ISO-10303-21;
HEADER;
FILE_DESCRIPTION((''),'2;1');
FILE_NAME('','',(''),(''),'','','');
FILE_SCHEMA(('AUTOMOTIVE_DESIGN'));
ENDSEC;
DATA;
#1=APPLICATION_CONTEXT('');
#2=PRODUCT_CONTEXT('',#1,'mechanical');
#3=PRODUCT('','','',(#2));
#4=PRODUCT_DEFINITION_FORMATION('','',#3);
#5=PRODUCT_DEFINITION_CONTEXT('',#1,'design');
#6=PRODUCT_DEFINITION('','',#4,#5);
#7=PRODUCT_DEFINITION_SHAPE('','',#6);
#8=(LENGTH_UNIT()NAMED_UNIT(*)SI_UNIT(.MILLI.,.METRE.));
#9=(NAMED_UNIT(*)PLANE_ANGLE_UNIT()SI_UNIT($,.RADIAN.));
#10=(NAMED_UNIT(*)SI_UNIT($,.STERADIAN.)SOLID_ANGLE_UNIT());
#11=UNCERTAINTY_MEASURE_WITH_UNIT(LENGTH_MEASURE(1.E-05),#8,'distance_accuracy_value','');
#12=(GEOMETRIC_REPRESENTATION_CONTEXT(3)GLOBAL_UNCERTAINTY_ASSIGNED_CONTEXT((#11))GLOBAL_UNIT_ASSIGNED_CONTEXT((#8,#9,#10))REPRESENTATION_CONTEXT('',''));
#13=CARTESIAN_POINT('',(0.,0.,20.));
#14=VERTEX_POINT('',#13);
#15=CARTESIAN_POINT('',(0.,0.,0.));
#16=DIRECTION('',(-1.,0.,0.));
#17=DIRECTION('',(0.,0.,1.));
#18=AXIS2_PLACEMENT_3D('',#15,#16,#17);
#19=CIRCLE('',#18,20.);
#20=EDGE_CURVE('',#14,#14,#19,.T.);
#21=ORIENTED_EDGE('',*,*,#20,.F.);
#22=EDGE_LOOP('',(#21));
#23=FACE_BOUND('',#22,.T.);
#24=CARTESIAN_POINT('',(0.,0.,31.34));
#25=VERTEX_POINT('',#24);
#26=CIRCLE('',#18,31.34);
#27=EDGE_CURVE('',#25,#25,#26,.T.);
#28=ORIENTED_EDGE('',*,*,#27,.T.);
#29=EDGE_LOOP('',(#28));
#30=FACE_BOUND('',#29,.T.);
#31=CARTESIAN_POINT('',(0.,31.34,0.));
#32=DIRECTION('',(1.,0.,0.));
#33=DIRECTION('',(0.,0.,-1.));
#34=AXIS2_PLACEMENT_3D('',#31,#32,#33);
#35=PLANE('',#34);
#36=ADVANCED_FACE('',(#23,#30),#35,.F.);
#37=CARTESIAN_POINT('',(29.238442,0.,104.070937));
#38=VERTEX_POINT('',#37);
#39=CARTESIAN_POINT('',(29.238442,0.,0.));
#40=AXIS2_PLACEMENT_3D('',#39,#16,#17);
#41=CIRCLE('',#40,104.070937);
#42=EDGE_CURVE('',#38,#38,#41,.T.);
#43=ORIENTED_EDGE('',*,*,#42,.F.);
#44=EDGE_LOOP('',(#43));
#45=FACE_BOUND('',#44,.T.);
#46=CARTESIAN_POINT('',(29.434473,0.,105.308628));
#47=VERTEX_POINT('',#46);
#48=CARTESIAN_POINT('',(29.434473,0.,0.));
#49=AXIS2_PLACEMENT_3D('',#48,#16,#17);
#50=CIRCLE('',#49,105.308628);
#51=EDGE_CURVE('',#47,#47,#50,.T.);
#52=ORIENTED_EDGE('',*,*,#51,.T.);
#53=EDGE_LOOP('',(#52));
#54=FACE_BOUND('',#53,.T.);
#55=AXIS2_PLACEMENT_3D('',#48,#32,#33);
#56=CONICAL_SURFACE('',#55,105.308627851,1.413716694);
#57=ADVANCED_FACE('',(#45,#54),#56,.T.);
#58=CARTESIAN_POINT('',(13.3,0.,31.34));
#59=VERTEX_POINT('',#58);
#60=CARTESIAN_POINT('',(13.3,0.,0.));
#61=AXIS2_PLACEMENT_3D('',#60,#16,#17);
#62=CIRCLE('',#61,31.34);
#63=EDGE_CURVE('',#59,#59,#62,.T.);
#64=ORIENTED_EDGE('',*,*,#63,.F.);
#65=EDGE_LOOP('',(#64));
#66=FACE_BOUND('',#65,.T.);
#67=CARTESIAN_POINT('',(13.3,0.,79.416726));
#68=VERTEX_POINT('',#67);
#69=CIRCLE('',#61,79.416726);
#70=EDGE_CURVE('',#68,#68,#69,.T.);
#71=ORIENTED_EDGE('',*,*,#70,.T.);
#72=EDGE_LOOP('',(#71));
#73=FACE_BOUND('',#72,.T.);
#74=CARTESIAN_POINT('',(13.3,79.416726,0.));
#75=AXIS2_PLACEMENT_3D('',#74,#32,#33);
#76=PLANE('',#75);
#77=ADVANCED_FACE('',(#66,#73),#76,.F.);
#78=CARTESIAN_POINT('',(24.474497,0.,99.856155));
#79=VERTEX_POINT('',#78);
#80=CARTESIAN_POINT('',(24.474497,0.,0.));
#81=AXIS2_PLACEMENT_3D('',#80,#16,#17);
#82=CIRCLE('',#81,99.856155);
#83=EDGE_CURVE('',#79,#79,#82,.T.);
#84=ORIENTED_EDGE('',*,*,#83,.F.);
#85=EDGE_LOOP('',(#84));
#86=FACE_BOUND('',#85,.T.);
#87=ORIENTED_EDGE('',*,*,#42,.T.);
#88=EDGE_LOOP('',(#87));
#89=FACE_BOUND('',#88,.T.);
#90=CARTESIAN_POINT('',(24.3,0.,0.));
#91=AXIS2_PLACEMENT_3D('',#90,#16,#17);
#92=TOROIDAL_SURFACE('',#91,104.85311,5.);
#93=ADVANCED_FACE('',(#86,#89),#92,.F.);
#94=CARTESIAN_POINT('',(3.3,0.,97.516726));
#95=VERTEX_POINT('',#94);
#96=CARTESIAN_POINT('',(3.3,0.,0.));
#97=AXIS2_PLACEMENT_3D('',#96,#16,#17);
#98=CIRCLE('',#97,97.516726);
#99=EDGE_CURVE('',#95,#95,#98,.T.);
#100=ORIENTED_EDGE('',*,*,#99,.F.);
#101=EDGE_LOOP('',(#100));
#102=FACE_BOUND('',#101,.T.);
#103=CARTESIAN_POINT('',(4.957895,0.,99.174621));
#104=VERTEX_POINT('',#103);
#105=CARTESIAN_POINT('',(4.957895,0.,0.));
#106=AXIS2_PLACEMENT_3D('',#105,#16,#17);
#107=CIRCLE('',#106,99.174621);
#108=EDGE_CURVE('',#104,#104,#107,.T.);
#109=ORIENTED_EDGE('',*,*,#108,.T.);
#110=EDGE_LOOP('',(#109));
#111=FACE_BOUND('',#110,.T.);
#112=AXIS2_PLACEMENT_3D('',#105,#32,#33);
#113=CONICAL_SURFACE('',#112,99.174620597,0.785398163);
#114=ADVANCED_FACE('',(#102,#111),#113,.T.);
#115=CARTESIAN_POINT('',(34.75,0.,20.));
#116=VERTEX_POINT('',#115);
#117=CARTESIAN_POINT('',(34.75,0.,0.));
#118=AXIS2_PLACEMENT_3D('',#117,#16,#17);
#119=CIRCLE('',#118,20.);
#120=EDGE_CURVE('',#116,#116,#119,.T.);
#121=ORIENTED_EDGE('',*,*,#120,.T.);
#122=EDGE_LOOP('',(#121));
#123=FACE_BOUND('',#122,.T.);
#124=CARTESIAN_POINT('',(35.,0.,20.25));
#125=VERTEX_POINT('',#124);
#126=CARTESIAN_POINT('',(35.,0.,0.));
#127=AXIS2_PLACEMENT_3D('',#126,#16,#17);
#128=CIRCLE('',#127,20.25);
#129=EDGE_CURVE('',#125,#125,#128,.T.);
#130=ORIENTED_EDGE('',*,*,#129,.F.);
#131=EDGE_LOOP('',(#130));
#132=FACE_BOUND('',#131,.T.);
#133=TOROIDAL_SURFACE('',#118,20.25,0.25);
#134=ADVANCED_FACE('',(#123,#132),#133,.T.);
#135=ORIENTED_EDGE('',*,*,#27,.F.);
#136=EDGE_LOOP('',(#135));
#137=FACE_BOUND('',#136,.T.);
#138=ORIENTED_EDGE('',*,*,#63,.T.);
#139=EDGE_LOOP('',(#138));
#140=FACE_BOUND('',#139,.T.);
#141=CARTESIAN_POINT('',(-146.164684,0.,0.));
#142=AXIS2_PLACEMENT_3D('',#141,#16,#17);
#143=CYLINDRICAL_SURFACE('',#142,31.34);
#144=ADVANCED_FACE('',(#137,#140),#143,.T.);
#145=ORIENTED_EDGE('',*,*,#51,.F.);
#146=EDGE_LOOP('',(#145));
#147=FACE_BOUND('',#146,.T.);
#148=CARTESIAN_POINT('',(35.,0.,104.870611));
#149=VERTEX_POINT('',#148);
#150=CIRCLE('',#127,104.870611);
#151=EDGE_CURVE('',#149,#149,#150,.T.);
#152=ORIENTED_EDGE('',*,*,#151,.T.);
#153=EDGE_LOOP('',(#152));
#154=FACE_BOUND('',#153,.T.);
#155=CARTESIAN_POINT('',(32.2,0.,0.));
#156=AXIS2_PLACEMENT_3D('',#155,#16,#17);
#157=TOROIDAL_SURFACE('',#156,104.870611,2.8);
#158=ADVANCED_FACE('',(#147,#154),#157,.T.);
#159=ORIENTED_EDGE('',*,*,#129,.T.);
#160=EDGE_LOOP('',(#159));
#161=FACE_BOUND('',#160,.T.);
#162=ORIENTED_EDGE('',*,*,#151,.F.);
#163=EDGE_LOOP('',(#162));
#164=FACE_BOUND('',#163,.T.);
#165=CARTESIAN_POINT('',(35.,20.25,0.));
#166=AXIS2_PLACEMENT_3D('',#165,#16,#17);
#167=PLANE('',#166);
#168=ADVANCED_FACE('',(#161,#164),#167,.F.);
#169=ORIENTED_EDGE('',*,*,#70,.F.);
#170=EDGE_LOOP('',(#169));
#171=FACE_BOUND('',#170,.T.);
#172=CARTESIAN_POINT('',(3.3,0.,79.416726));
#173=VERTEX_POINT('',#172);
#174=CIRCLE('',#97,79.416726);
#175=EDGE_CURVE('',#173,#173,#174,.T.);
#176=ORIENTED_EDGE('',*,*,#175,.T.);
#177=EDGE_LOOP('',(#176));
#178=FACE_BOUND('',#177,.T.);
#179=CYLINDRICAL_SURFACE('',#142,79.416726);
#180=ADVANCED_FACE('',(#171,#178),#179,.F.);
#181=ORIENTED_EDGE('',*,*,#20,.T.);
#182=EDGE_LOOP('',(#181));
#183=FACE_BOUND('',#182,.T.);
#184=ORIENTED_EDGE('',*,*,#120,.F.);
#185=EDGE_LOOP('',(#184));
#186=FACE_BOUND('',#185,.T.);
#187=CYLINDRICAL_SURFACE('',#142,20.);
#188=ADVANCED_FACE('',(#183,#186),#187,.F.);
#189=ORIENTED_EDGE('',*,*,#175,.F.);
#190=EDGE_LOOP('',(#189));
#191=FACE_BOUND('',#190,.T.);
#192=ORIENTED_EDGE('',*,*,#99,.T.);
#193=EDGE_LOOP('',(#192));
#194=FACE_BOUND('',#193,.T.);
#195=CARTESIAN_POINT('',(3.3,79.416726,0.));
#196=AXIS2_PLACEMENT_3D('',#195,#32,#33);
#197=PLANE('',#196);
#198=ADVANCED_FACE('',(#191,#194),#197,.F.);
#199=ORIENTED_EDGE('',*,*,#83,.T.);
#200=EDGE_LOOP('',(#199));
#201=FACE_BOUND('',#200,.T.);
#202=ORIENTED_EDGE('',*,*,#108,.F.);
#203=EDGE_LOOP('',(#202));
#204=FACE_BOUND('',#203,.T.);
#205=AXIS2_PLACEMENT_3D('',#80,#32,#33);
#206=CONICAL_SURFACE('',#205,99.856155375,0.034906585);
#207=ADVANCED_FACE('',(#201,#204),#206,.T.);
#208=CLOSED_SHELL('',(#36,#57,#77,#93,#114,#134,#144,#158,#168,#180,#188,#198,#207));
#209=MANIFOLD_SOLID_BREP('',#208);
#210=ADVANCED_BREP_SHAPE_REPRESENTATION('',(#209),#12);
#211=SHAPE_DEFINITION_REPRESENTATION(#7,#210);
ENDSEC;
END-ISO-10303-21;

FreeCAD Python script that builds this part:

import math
import FreeCAD as App
import Part
import Sketcher
from FreeCAD import Vector
Q = App.Units.Quantity

doc = App.newDocument("Part")
params = doc.addObject("Spreadsheet::Sheet", "Params")
for row, (alias, value) in enumerate([
    ("sketch1_radius", "5 mm"),
    ("sketch1_radius2", "2.8 mm"),
    ("sketch1_width", "10 mm"),
    ("sketch1_radius3", "0.25 mm"),
    ("sketch1_width2", "13.3 mm"),
    ("revolution_angle", "360 deg"),
], start=1):
    params.set(f"A{row}", alias)
    params.set(f"B{row}", "=" + value)
    params.setAlias(f"B{row}", alias)

body = doc.addObject("PartDesign::Body", "Body")

sketch1 = body.newObject("Sketcher::SketchObject", "Sketch")
sketch1.AttachmentSupport = (doc.getObject("XY_Plane"), [""])
sketch1.MapMode = "FlatFace"
sketch1.addGeometry([
    Part.LineSegment(Vector(0, 20, 0), Vector(34.75, 20, 0)),
    Part.ArcOfCircle(Part.Circle(Vector(34.75, 20.25, 0), Vector(0, 0, 1), 0.25), math.radians(-90), math.radians(0)),
    Part.LineSegment(Vector(35, 20.25, 0), Vector(35, 104.87, 0)),
    Part.ArcOfCircle(Part.Circle(Vector(32.2, 104.87, 0), Vector(0, 0, 1), 2.8), math.radians(0), math.radians(171)),
    Part.LineSegment(Vector(29.43, 105.31, 0), Vector(29.24, 104.07, 0)),
    Part.ArcOfCircle(Part.Circle(Vector(24.3, 104.85, 0), Vector(0, 0, 1), 5), math.radians(-88), math.radians(-9)),
    Part.LineSegment(Vector(24.47, 99.86, 0), Vector(4.96, 99.17, 0)),
    Part.LineSegment(Vector(4.96, 99.17, 0), Vector(3.3, 97.52, 0)),
    Part.LineSegment(Vector(3.3, 97.52, 0), Vector(3.3, 79.42, 0)),
    Part.LineSegment(Vector(3.3, 79.42, 0), Vector(13.3, 79.42, 0)),
    Part.LineSegment(Vector(13.3, 79.42, 0), Vector(13.3, 31.34, 0)),
    Part.LineSegment(Vector(13.3, 31.34, 0), Vector(0, 31.34, 0)),
    Part.LineSegment(Vector(0, 31.34, 0), Vector(0, 20, 0)),
], False)
sketch1.addConstraint([
    Sketcher.Constraint("Tangent", 0, 2, 1, 1),
    Sketcher.Constraint("Tangent", 1, 2, 2, 1),
    Sketcher.Constraint("Tangent", 2, 2, 3, 1),
    Sketcher.Constraint("Tangent", 3, 2, 4, 1),
    Sketcher.Constraint("Tangent", 4, 2, 5, 2),
    Sketcher.Constraint("Tangent", 5, 1, 6, 1),
    Sketcher.Constraint("Coincident", 6, 2, 7, 1),
    Sketcher.Constraint("Coincident", 7, 2, 8, 1),
    Sketcher.Constraint("Coincident", 8, 2, 9, 1),
    Sketcher.Constraint("Coincident", 9, 2, 10, 1),
    Sketcher.Constraint("Coincident", 10, 2, 11, 1),
    Sketcher.Constraint("Coincident", 11, 2, 12, 1),
    Sketcher.Constraint("Coincident", 12, 2, 0, 1),
    Sketcher.Constraint("Horizontal", 0),
    Sketcher.Constraint("Vertical", 2),
    Sketcher.Constraint("Vertical", 8),
    Sketcher.Constraint("Horizontal", 9),
    Sketcher.Constraint("Vertical", 10),
    Sketcher.Constraint("Horizontal", 11),
    Sketcher.Constraint("Vertical", 12),
    Sketcher.Constraint("PointOnObject", 11, 2, -2),
    Sketcher.Constraint("Radius", 5, Q("5 mm")),
    Sketcher.Constraint("Radius", 3, Q("2.8 mm")),
    Sketcher.Constraint("DistanceX", 9, 1, 9, 2, Q("10 mm")),
    Sketcher.Constraint("Angle", 4, Q("-99 deg")),
    Sketcher.Constraint("Angle", 6, Q("-178 deg")),
    Sketcher.Constraint("Angle", 7, Q("-135 deg")),
    Sketcher.Constraint("Radius", 1, Q("0.25 mm")),
    Sketcher.Constraint("DistanceX", 11, 2, 11, 1, Q("13.3 mm")),
    Sketcher.Constraint("DistanceY", 8, 2, 8, 1, Q("18.1 mm")),
    Sketcher.Constraint("DistanceY", -1, 1, 0, 2, Q("20 mm")),
    Sketcher.Constraint("DistanceX", -1, 1, 1, 2, Q("35 mm")),
    Sketcher.Constraint("DistanceX", 7, 2, 5, 3, Q("21 mm")),
    Sketcher.Constraint("DistanceY", 12, 2, 12, 1, Q("11.34 mm")),
    Sketcher.Constraint("Distance", 6, Q("19.528499 mm")),
    Sketcher.Constraint("DistanceY", 2, 1, 2, 2, Q("84.620611 mm")),
])
sketch1.setExpression("Constraints[21]", "Params.sketch1_radius")
sketch1.setExpression("Constraints[22]", "Params.sketch1_radius2")
sketch1.setExpression("Constraints[23]", "Params.sketch1_width")
sketch1.setExpression("Constraints[27]", "Params.sketch1_radius3")
sketch1.setExpression("Constraints[28]", "Params.sketch1_width2")
revolution = body.newObject("PartDesign::Revolution", "Revolution")
revolution.Profile = sketch1
revolution.ReferenceAxis = (sketch1, ["H_Axis"])
revolution.setExpression("Angle", "Params.revolution_angle")

doc.recompute()
